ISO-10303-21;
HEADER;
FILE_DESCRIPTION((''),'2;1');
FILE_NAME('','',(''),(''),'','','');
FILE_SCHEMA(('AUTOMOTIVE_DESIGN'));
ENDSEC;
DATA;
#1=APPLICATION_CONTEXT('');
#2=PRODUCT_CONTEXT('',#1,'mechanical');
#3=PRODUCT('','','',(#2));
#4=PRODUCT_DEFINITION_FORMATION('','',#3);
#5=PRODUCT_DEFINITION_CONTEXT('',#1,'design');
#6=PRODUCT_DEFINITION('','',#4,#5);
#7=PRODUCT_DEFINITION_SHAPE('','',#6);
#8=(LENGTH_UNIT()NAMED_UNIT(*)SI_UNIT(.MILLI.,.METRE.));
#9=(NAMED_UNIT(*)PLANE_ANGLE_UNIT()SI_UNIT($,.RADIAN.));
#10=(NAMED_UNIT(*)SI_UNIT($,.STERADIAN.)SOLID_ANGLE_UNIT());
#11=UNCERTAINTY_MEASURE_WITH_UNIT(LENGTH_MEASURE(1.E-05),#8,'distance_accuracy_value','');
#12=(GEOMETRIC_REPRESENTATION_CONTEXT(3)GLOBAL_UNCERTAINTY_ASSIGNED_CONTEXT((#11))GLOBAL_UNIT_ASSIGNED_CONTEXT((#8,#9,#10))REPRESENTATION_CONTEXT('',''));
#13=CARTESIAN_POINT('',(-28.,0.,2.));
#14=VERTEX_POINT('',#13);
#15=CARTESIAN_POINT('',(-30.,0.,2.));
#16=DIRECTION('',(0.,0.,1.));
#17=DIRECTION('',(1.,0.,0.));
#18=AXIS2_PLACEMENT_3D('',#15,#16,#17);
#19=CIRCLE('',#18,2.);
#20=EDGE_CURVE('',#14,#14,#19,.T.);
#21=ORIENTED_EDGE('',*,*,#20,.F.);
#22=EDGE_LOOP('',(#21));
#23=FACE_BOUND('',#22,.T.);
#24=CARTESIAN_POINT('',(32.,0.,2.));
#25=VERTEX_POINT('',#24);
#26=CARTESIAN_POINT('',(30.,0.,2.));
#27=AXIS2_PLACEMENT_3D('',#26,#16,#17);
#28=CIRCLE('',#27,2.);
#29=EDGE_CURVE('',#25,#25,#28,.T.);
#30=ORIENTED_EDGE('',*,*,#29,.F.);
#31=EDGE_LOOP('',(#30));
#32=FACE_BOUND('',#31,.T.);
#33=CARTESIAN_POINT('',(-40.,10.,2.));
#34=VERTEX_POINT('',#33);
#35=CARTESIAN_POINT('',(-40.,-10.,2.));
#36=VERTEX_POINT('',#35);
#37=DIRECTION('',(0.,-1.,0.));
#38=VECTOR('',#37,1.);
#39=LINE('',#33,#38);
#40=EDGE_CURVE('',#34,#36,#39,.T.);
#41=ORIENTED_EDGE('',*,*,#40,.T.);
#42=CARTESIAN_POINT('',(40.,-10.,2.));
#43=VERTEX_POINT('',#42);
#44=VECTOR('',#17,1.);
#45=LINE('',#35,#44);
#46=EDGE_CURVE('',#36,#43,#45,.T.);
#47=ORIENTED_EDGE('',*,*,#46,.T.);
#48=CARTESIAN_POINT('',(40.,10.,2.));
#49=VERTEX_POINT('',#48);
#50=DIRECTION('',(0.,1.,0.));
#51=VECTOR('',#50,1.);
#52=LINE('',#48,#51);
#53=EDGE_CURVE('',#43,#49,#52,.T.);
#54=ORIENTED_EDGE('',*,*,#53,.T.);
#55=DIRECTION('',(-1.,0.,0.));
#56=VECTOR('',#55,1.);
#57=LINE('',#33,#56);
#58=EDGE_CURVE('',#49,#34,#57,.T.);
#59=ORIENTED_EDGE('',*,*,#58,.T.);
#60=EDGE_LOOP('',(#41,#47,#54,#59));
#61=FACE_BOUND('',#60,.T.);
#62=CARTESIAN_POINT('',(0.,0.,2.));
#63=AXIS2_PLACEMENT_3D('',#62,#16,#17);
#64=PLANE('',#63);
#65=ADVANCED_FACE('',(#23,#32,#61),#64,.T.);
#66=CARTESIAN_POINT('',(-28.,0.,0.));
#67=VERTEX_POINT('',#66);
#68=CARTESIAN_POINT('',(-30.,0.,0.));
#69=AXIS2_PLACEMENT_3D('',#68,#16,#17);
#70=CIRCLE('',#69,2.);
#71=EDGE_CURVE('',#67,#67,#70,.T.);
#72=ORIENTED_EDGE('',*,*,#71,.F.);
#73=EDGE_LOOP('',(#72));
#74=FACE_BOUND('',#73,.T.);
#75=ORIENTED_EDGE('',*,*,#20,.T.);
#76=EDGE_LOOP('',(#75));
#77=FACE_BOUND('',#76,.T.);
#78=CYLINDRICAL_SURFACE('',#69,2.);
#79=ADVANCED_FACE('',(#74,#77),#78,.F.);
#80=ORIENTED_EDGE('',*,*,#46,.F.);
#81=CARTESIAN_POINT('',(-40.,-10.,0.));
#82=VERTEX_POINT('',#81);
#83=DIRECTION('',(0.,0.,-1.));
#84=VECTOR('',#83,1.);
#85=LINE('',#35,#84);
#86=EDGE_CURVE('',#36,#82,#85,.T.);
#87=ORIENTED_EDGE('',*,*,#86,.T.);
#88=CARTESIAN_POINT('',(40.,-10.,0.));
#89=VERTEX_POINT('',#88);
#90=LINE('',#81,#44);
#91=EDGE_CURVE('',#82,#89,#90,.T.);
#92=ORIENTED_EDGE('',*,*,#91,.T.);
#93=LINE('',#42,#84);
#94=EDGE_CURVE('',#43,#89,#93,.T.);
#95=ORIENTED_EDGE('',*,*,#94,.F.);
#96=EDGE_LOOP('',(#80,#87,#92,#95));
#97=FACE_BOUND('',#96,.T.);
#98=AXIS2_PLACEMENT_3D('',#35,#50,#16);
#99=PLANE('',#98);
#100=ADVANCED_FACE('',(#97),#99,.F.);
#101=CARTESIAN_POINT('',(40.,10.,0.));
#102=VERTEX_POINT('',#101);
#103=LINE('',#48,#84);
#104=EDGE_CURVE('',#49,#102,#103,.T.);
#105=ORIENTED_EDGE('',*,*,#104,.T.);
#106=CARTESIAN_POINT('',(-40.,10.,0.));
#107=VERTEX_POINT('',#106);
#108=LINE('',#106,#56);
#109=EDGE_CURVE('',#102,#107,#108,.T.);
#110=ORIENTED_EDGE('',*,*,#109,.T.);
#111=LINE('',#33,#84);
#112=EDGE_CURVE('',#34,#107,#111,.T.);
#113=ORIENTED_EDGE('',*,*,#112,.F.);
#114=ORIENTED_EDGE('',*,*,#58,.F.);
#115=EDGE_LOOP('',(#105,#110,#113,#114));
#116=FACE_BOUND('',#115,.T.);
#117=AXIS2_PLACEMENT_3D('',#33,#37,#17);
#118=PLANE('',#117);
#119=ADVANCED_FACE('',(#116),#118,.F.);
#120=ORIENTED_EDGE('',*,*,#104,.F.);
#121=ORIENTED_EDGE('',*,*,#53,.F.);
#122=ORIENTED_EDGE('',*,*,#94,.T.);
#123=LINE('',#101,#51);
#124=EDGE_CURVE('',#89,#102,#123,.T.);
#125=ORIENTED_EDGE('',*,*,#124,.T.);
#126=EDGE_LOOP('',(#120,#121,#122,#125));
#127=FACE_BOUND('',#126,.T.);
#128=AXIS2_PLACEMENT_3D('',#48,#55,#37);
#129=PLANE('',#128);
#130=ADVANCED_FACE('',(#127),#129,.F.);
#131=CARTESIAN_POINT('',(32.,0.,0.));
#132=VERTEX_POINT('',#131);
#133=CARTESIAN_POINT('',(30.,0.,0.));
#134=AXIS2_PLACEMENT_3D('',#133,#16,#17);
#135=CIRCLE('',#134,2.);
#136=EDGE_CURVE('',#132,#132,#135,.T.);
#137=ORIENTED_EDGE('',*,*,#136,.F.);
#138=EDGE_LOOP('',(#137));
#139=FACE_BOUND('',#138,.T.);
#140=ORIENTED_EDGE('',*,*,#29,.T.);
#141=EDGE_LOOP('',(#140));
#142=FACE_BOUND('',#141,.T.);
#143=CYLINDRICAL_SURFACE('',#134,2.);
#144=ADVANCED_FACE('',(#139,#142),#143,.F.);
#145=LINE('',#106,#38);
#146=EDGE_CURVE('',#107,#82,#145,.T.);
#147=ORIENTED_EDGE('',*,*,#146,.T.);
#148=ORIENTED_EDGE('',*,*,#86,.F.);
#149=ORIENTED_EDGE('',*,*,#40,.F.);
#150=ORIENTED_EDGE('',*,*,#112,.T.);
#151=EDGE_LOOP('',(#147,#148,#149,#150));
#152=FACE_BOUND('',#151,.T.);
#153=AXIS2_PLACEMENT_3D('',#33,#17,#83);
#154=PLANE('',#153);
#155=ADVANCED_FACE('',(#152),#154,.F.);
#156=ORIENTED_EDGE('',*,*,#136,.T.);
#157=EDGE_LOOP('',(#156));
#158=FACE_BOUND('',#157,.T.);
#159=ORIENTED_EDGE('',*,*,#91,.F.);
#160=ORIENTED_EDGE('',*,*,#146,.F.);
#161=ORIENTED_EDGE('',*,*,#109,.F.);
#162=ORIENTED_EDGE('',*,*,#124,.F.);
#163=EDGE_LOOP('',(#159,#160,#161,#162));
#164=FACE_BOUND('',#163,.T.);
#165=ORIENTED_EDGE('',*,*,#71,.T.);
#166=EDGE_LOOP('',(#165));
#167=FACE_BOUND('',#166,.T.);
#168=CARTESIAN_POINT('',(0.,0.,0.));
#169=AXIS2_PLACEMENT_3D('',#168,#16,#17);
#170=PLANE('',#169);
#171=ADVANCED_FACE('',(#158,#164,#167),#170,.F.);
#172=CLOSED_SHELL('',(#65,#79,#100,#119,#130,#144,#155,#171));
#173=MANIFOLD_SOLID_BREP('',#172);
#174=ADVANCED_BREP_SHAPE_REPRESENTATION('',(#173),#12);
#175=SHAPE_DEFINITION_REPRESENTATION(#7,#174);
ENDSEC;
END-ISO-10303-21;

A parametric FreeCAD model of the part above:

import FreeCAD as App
import Part
import Sketcher
Q = App.Units.Quantity

doc = App.newDocument("Part")
params = doc.addObject("Spreadsheet::Sheet", "Params")
for row, (alias, value) in enumerate([
    ("sketch1_width", "80 mm"),
    ("sketch1_height", "20 mm"),
    ("pad1_length", "2 mm"),
    ("sketch2_diameter", "4 mm"),
    ("pocket1_length", "2 mm"),
], start=1):
    params.set(f"A{row}", alias)
    params.set(f"B{row}", "=" + value)
    params.setAlias(f"B{row}", alias)

body = doc.addObject("PartDesign::Body", "Body")

# Sketch on XY plane
sketch1 = body.newObject("Sketcher::SketchObject", "Sketch")
sketch1.AttachmentSupport = (doc.getObject("XY_Plane"), [""])
sketch1.MapMode = "FlatFace"
sketch1.addGeometry([
    Part.LineSegment(App.Vector(-40, 10, 0), App.Vector(-40, -10, 0)),
    Part.LineSegment(App.Vector(-40, -10, 0), App.Vector(40, -10, 0)),
    Part.LineSegment(App.Vector(40, -10, 0), App.Vector(40, 10, 0)),
    Part.LineSegment(App.Vector(40, 10, 0), App.Vector(-40, 10, 0)),
], False)
sketch1.addConstraint([
    Sketcher.Constraint("Coincident", 0, 2, 1, 1),
    Sketcher.Constraint("Coincident", 1, 2, 2, 1),
    Sketcher.Constraint("Coincident", 2, 2, 3, 1),
    Sketcher.Constraint("Coincident", 3, 2, 0, 1),
    Sketcher.Constraint("Vertical", 0),
    Sketcher.Constraint("Horizontal", 1),
    Sketcher.Constraint("Vertical", 2),
    Sketcher.Constraint("Horizontal", 3),
    Sketcher.Constraint("Symmetric", 0, 2, 2, 2, -1, 1),
    Sketcher.Constraint("DistanceX", 1, 1, 1, 2, Q("80 mm")),
    Sketcher.Constraint("DistanceY", 0, 2, 0, 1, Q("20 mm")),
])
sketch1.setExpression("Constraints[9]", "Params.sketch1_width")
sketch1.setExpression("Constraints[10]", "Params.sketch1_height")
pad1 = body.newObject("PartDesign::Pad", "Pad")
pad1.Profile = sketch1
pad1.setExpression("Length", "Params.pad1_length")

# Sketch on XY plane
sketch2 = body.newObject("Sketcher::SketchObject", "Sketch001")
sketch2.AttachmentSupport = (doc.getObject("XY_Plane"), [""])
sketch2.MapMode = "FlatFace"
sketch2.AttachmentOffset = App.Placement(App.Vector(0, 0, 2), App.Rotation())
sketch2.addGeometry([
    Part.Circle(App.Vector(-30, 0, 0), App.Vector(0, 0, 1), 2),
    Part.Circle(App.Vector(30, 0, 0), App.Vector(0, 0, 1), 2),
], False)
sketch2.addConstraint([
    Sketcher.Constraint("Equal", 0, 1),
    Sketcher.Constraint("Symmetric", 0, 3, 1, 3, -1, 1),
    Sketcher.Constraint("PointOnObject", 0, 3, -1),
    Sketcher.Constraint("Diameter", 0, Q("4 mm")),
    Sketcher.Constraint("DistanceX", 0, 3, -1, 1, Q("30 mm")),
])
sketch2.setExpression("Constraints[3]", "Params.sketch2_diameter")
pocket1 = body.newObject("PartDesign::Pocket", "Pocket")
pocket1.Profile = sketch2
pocket1.setExpression("Length", "Params.pocket1_length")

doc.recompute()
